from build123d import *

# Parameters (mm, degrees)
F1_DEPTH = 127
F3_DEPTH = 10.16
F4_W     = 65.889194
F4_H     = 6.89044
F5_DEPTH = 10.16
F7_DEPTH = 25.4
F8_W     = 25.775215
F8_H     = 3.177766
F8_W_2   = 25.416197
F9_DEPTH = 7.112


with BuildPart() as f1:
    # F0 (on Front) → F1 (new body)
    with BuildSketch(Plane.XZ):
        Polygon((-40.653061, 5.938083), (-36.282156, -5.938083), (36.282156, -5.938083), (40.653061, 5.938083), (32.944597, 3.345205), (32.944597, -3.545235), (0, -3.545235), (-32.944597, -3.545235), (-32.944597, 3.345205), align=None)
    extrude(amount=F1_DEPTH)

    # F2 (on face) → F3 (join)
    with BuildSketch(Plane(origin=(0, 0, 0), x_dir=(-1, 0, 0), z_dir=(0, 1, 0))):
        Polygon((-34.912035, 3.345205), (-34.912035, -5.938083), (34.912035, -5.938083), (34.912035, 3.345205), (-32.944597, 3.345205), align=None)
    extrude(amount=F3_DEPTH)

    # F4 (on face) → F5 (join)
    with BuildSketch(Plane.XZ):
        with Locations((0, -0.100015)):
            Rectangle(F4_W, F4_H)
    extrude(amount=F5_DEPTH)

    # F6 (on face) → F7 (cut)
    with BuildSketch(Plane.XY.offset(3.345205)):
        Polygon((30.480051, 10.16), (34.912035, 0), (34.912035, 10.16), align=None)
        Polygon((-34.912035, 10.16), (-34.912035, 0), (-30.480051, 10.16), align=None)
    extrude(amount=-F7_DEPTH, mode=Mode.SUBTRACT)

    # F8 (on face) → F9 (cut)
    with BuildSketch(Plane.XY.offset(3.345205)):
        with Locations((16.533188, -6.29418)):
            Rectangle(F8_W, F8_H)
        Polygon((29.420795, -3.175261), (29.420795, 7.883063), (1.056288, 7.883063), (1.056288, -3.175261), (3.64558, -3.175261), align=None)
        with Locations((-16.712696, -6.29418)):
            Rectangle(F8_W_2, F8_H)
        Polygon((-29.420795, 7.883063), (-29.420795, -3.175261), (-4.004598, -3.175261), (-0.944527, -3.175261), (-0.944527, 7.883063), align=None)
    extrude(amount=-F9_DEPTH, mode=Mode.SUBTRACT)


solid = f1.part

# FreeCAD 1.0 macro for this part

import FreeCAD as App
import Part
import Sketcher
from FreeCAD import Vector
Q = App.Units.Quantity


def add_polygon(sketch, points):
    """Adds a closed chain of lines whose ends are joined by coincident constraints."""
    first, n = sketch.GeometryCount, len(points)
    for a, b in zip(points, points[1:] + points[:1]):
        sketch.addGeometry(Part.LineSegment(App.Vector(*a, 0), App.Vector(*b, 0)), False)
    for i in range(n):
        sketch.addConstraint(Sketcher.Constraint("Coincident", first + i, 2, first + (i + 1) % n, 1))

doc = App.newDocument("Part")
body = doc.addObject("PartDesign::Body", "Body")

# Sketch on XZ plane
sketch1 = doc.addObject("Sketcher::SketchObject", "Sketch")
body.addObject(sketch1)
sketch1.AttachmentSupport = (doc.XZ_Plane, [""])
sketch1.MapMode = "FlatFace"
add_polygon(sketch1, [(-41, 6), (-36, -6), (36, -6), (41, 6), (33, 3), (33, -4), (-33, -4), (-33, 3)])  # lines 0-7
sketch1.addConstraint([
    Sketcher.Constraint("Horizontal", 1),
    Sketcher.Constraint("Vertical", 4),
    Sketcher.Constraint("Horizontal", 5),
    Sketcher.Constraint("Vertical", 6),
    Sketcher.Constraint("Symmetric", 3, 2, 6, 2, -2),
    Sketcher.Constraint("Symmetric", 2, 2, 7, 2, -2),
    Sketcher.Constraint("Equal", 0, 2),
    Sketcher.Constraint("DistanceX", 3, 2, 1, 2, Q("0.1314 in")),
    Sketcher.Constraint("DistanceX", 1, 1, 1, 2, Q("72.564312 mm")),
    Sketcher.Constraint("DistanceY", 4, 2, 4, 1, Q("6.89044 mm")),
    Sketcher.Constraint("Distance", 3, Q("8.132861 mm")),
    Sketcher.Constraint("DistanceX", -1, 1, 2, 2, Q("40.653061 mm")),
    Sketcher.Constraint("Distance", 0, Q("12.654965 mm")),
    Sketcher.Constraint("DistanceY", 0, 2, -1, 1, Q("5.938083 mm")),
])
pad1 = doc.addObject("PartDesign::Pad", "Pad")
body.addObject(pad1)
pad1.Profile = sketch1
pad1.Length = Q("5 in")

# Sketch on XZ plane
sketch2 = doc.addObject("Sketcher::SketchObject", "Sketch001")
body.addObject(sketch2)
sketch2.AttachmentSupport = (doc.XZ_Plane, [""])
sketch2.MapMode = "FlatFace"
add_polygon(sketch2, [(35, 3), (35, -6), (-35, -6), (-35, 3)])  # lines 0-3
sketch2.addConstraint([
    Sketcher.Constraint("Vertical", 0),
    Sketcher.Constraint("Horizontal", 1),
    Sketcher.Constraint("Vertical", 2),
    Sketcher.Constraint("Horizontal", 3),
    Sketcher.Constraint("DistanceX", 1, 2, 1, 1, Q("69.82407 mm")),
    Sketcher.Constraint("DistanceY", 0, 2, 0, 1, Q("9.283288 mm")),
    Sketcher.Constraint("DistanceX", -1, 1, 0, 2, Q("34.912035 mm")),
    Sketcher.Constraint("DistanceY", 0, 2, -1, 1, Q("5.938083 mm")),
])
pad2 = doc.addObject("PartDesign::Pad", "Pad001")
body.addObject(pad2)
pad2.Profile = sketch2
pad2.Length = Q("0.4 in")
pad2.Reversed = True

# Sketch on XZ plane
sketch3 = doc.addObject("Sketcher::SketchObject", "Sketch002")
body.addObject(sketch3)
sketch3.AttachmentSupport = (doc.XZ_Plane, [""])
sketch3.MapMode = "FlatFace"
add_polygon(sketch3, [(-33, 3), (-33, -4), (33, -4), (33, 3)])  # lines 0-3
sketch3.addConstraint([
    Sketcher.Constraint("Vertical", 0),
    Sketcher.Constraint("Horizontal", 1),
    Sketcher.Constraint("Vertical", 2),
    Sketcher.Constraint("Horizontal", 3),
    Sketcher.Constraint("DistanceY", 0, 2, 0, 1, Q("6.89044 mm")),
    Sketcher.Constraint("DistanceX", 1, 1, 1, 2, Q("65.889194 mm")),
    Sketcher.Constraint("DistanceX", 0, 2, -1, 1, Q("32.944597 mm")),
    Sketcher.Constraint("DistanceY", 0, 2, -1, 1, Q("3.545235 mm")),
])
pad3 = doc.addObject("PartDesign::Pad", "Pad002")
body.addObject(pad3)
pad3.Profile = sketch3
pad3.Length = Q("0.4 in")

# Sketch on XY plane
sketch4 = doc.addObject("Sketcher::SketchObject", "Sketch003")
body.addObject(sketch4)
sketch4.AttachmentSupport = (doc.XY_Plane, [""])
sketch4.MapMode = "FlatFace"
sketch4.AttachmentOffset = App.Placement(Vector(0, 0, 3.345205), App.Rotation())
add_polygon(sketch4, [(30.5, 10.2), (34.9, 0), (34.9, 10.2)])  # lines 0-2
add_polygon(sketch4, [(-34.9, 10.2), (-34.9, 0), (-30.5, 10.2)])  # lines 3-5
sketch4.addConstraint([
    Sketcher.Constraint("Vertical", 1),
    Sketcher.Constraint("Horizontal", 2),
    Sketcher.Constraint("Vertical", 3),
    Sketcher.Constraint("Horizontal", 5),
    Sketcher.Constraint("Symmetric", 0, 2, 3, 2, -1, 1),
    Sketcher.Constraint("Symmetric", 2, 2, 4, 2, -2),
    Sketcher.Constraint("PointOnObject", 0, 2, -1),
    Sketcher.Constraint("DistanceY", 1, 1, 1, 2, Q("0.4 in")),
    Sketcher.Constraint("DistanceX", 2, 2, 2, 1, Q("4.431984 mm")),
    Sketcher.Constraint("DistanceX", -1, 1, 2, 2, Q("30.480051 mm")),
])
pocket1 = doc.addObject("PartDesign::Pocket", "Pocket")
body.addObject(pocket1)
pocket1.Profile = sketch4
pocket1.Length = Q("1 in")

# Sketch on XY plane
sketch5 = doc.addObject("Sketcher::SketchObject", "Sketch004")
body.addObject(sketch5)
sketch5.AttachmentSupport = (doc.XY_Plane, [""])
sketch5.MapMode = "FlatFace"
sketch5.AttachmentOffset = App.Placement(Vector(0, 0, 3.345205), App.Rotation())
add_polygon(sketch5, [(3.6, -4.7), (3.6, -7.9), (29.4, -7.9), (29.4, -4.7)])  # lines 0-3
add_polygon(sketch5, [(29.4, -3.2), (29.4, 7.9), (1.1, 7.9), (1.1, -3.2)])  # lines 4-7
add_polygon(sketch5, [(-29.4, -4.7), (-29.4, -7.9), (-4, -7.9), (-4, -4.7)])  # lines 8-11
add_polygon(sketch5, [(-29.4, 7.9), (-29.4, -3.2), (-0.9, -3.2), (-0.9, 7.9)])  # lines 12-15
sketch5.addConstraint([
    Sketcher.Constraint("Vertical", 0),
    Sketcher.Constraint("Horizontal", 1),
    Sketcher.Constraint("Vertical", 2),
    Sketcher.Constraint("Horizontal", 3),
    Sketcher.Constraint("Vertical", 4),
    Sketcher.Constraint("Horizontal", 5),
    Sketcher.Constraint("Vertical", 6),
    Sketcher.Constraint("Horizontal", 7),
    Sketcher.Constraint("Vertical", 8),
    Sketcher.Constraint("Horizontal", 9),
    Sketcher.Constraint("Vertical", 10),
    Sketcher.Constraint("Horizontal", 11),
    Sketcher.Constraint("Vertical", 12),
    Sketcher.Constraint("Horizontal", 13),
    Sketcher.Constraint("Vertical", 14),
    Sketcher.Constraint("Horizontal", 15),
    Sketcher.Constraint("Symmetric", 4, 2, 8, 2, -1, 1),
    Sketcher.Constraint("Symmetric", 1, 2, 15, 2, -1, 1),
    Sketcher.Constraint("Symmetric", 1, 2, 8, 2, -2),
    Sketcher.Constraint("Horizontal", 3, 2, 10, 2),
    Sketcher.Constraint("Horizontal", 7, 2, 12, 2),
    Sketcher.Constraint("DistanceX", 1, 1, 1, 2, Q("25.775215 mm")),
    Sketcher.Constraint("DistanceX", 5, 2, 5, 1, Q("28.364507 mm")),
    Sketcher.Constraint("DistanceX", 9, 1, 9, 2, Q("25.416197 mm")),
    Sketcher.Constraint("DistanceX", 13, 1, 13, 2, Q("28.476268 mm")),
    Sketcher.Constraint("DistanceY", 0, 2, 0, 1, Q("3.177766 mm")),
    Sketcher.Constraint("DistanceY", 4, 1, 4, 2, Q("11.058324 mm")),
    Sketcher.Constraint("DistanceX", -1, 1, 0, 2, Q("3.64558 mm")),
    Sketcher.Constraint("DistanceY", 6, 2, -1, 1, Q("3.175261 mm")),
])
pocket2 = doc.addObject("PartDesign::Pocket", "Pocket001")
body.addObject(pocket2)
pocket2.Profile = sketch5
pocket2.Length = Q("0.28 in")

doc.recompute()
